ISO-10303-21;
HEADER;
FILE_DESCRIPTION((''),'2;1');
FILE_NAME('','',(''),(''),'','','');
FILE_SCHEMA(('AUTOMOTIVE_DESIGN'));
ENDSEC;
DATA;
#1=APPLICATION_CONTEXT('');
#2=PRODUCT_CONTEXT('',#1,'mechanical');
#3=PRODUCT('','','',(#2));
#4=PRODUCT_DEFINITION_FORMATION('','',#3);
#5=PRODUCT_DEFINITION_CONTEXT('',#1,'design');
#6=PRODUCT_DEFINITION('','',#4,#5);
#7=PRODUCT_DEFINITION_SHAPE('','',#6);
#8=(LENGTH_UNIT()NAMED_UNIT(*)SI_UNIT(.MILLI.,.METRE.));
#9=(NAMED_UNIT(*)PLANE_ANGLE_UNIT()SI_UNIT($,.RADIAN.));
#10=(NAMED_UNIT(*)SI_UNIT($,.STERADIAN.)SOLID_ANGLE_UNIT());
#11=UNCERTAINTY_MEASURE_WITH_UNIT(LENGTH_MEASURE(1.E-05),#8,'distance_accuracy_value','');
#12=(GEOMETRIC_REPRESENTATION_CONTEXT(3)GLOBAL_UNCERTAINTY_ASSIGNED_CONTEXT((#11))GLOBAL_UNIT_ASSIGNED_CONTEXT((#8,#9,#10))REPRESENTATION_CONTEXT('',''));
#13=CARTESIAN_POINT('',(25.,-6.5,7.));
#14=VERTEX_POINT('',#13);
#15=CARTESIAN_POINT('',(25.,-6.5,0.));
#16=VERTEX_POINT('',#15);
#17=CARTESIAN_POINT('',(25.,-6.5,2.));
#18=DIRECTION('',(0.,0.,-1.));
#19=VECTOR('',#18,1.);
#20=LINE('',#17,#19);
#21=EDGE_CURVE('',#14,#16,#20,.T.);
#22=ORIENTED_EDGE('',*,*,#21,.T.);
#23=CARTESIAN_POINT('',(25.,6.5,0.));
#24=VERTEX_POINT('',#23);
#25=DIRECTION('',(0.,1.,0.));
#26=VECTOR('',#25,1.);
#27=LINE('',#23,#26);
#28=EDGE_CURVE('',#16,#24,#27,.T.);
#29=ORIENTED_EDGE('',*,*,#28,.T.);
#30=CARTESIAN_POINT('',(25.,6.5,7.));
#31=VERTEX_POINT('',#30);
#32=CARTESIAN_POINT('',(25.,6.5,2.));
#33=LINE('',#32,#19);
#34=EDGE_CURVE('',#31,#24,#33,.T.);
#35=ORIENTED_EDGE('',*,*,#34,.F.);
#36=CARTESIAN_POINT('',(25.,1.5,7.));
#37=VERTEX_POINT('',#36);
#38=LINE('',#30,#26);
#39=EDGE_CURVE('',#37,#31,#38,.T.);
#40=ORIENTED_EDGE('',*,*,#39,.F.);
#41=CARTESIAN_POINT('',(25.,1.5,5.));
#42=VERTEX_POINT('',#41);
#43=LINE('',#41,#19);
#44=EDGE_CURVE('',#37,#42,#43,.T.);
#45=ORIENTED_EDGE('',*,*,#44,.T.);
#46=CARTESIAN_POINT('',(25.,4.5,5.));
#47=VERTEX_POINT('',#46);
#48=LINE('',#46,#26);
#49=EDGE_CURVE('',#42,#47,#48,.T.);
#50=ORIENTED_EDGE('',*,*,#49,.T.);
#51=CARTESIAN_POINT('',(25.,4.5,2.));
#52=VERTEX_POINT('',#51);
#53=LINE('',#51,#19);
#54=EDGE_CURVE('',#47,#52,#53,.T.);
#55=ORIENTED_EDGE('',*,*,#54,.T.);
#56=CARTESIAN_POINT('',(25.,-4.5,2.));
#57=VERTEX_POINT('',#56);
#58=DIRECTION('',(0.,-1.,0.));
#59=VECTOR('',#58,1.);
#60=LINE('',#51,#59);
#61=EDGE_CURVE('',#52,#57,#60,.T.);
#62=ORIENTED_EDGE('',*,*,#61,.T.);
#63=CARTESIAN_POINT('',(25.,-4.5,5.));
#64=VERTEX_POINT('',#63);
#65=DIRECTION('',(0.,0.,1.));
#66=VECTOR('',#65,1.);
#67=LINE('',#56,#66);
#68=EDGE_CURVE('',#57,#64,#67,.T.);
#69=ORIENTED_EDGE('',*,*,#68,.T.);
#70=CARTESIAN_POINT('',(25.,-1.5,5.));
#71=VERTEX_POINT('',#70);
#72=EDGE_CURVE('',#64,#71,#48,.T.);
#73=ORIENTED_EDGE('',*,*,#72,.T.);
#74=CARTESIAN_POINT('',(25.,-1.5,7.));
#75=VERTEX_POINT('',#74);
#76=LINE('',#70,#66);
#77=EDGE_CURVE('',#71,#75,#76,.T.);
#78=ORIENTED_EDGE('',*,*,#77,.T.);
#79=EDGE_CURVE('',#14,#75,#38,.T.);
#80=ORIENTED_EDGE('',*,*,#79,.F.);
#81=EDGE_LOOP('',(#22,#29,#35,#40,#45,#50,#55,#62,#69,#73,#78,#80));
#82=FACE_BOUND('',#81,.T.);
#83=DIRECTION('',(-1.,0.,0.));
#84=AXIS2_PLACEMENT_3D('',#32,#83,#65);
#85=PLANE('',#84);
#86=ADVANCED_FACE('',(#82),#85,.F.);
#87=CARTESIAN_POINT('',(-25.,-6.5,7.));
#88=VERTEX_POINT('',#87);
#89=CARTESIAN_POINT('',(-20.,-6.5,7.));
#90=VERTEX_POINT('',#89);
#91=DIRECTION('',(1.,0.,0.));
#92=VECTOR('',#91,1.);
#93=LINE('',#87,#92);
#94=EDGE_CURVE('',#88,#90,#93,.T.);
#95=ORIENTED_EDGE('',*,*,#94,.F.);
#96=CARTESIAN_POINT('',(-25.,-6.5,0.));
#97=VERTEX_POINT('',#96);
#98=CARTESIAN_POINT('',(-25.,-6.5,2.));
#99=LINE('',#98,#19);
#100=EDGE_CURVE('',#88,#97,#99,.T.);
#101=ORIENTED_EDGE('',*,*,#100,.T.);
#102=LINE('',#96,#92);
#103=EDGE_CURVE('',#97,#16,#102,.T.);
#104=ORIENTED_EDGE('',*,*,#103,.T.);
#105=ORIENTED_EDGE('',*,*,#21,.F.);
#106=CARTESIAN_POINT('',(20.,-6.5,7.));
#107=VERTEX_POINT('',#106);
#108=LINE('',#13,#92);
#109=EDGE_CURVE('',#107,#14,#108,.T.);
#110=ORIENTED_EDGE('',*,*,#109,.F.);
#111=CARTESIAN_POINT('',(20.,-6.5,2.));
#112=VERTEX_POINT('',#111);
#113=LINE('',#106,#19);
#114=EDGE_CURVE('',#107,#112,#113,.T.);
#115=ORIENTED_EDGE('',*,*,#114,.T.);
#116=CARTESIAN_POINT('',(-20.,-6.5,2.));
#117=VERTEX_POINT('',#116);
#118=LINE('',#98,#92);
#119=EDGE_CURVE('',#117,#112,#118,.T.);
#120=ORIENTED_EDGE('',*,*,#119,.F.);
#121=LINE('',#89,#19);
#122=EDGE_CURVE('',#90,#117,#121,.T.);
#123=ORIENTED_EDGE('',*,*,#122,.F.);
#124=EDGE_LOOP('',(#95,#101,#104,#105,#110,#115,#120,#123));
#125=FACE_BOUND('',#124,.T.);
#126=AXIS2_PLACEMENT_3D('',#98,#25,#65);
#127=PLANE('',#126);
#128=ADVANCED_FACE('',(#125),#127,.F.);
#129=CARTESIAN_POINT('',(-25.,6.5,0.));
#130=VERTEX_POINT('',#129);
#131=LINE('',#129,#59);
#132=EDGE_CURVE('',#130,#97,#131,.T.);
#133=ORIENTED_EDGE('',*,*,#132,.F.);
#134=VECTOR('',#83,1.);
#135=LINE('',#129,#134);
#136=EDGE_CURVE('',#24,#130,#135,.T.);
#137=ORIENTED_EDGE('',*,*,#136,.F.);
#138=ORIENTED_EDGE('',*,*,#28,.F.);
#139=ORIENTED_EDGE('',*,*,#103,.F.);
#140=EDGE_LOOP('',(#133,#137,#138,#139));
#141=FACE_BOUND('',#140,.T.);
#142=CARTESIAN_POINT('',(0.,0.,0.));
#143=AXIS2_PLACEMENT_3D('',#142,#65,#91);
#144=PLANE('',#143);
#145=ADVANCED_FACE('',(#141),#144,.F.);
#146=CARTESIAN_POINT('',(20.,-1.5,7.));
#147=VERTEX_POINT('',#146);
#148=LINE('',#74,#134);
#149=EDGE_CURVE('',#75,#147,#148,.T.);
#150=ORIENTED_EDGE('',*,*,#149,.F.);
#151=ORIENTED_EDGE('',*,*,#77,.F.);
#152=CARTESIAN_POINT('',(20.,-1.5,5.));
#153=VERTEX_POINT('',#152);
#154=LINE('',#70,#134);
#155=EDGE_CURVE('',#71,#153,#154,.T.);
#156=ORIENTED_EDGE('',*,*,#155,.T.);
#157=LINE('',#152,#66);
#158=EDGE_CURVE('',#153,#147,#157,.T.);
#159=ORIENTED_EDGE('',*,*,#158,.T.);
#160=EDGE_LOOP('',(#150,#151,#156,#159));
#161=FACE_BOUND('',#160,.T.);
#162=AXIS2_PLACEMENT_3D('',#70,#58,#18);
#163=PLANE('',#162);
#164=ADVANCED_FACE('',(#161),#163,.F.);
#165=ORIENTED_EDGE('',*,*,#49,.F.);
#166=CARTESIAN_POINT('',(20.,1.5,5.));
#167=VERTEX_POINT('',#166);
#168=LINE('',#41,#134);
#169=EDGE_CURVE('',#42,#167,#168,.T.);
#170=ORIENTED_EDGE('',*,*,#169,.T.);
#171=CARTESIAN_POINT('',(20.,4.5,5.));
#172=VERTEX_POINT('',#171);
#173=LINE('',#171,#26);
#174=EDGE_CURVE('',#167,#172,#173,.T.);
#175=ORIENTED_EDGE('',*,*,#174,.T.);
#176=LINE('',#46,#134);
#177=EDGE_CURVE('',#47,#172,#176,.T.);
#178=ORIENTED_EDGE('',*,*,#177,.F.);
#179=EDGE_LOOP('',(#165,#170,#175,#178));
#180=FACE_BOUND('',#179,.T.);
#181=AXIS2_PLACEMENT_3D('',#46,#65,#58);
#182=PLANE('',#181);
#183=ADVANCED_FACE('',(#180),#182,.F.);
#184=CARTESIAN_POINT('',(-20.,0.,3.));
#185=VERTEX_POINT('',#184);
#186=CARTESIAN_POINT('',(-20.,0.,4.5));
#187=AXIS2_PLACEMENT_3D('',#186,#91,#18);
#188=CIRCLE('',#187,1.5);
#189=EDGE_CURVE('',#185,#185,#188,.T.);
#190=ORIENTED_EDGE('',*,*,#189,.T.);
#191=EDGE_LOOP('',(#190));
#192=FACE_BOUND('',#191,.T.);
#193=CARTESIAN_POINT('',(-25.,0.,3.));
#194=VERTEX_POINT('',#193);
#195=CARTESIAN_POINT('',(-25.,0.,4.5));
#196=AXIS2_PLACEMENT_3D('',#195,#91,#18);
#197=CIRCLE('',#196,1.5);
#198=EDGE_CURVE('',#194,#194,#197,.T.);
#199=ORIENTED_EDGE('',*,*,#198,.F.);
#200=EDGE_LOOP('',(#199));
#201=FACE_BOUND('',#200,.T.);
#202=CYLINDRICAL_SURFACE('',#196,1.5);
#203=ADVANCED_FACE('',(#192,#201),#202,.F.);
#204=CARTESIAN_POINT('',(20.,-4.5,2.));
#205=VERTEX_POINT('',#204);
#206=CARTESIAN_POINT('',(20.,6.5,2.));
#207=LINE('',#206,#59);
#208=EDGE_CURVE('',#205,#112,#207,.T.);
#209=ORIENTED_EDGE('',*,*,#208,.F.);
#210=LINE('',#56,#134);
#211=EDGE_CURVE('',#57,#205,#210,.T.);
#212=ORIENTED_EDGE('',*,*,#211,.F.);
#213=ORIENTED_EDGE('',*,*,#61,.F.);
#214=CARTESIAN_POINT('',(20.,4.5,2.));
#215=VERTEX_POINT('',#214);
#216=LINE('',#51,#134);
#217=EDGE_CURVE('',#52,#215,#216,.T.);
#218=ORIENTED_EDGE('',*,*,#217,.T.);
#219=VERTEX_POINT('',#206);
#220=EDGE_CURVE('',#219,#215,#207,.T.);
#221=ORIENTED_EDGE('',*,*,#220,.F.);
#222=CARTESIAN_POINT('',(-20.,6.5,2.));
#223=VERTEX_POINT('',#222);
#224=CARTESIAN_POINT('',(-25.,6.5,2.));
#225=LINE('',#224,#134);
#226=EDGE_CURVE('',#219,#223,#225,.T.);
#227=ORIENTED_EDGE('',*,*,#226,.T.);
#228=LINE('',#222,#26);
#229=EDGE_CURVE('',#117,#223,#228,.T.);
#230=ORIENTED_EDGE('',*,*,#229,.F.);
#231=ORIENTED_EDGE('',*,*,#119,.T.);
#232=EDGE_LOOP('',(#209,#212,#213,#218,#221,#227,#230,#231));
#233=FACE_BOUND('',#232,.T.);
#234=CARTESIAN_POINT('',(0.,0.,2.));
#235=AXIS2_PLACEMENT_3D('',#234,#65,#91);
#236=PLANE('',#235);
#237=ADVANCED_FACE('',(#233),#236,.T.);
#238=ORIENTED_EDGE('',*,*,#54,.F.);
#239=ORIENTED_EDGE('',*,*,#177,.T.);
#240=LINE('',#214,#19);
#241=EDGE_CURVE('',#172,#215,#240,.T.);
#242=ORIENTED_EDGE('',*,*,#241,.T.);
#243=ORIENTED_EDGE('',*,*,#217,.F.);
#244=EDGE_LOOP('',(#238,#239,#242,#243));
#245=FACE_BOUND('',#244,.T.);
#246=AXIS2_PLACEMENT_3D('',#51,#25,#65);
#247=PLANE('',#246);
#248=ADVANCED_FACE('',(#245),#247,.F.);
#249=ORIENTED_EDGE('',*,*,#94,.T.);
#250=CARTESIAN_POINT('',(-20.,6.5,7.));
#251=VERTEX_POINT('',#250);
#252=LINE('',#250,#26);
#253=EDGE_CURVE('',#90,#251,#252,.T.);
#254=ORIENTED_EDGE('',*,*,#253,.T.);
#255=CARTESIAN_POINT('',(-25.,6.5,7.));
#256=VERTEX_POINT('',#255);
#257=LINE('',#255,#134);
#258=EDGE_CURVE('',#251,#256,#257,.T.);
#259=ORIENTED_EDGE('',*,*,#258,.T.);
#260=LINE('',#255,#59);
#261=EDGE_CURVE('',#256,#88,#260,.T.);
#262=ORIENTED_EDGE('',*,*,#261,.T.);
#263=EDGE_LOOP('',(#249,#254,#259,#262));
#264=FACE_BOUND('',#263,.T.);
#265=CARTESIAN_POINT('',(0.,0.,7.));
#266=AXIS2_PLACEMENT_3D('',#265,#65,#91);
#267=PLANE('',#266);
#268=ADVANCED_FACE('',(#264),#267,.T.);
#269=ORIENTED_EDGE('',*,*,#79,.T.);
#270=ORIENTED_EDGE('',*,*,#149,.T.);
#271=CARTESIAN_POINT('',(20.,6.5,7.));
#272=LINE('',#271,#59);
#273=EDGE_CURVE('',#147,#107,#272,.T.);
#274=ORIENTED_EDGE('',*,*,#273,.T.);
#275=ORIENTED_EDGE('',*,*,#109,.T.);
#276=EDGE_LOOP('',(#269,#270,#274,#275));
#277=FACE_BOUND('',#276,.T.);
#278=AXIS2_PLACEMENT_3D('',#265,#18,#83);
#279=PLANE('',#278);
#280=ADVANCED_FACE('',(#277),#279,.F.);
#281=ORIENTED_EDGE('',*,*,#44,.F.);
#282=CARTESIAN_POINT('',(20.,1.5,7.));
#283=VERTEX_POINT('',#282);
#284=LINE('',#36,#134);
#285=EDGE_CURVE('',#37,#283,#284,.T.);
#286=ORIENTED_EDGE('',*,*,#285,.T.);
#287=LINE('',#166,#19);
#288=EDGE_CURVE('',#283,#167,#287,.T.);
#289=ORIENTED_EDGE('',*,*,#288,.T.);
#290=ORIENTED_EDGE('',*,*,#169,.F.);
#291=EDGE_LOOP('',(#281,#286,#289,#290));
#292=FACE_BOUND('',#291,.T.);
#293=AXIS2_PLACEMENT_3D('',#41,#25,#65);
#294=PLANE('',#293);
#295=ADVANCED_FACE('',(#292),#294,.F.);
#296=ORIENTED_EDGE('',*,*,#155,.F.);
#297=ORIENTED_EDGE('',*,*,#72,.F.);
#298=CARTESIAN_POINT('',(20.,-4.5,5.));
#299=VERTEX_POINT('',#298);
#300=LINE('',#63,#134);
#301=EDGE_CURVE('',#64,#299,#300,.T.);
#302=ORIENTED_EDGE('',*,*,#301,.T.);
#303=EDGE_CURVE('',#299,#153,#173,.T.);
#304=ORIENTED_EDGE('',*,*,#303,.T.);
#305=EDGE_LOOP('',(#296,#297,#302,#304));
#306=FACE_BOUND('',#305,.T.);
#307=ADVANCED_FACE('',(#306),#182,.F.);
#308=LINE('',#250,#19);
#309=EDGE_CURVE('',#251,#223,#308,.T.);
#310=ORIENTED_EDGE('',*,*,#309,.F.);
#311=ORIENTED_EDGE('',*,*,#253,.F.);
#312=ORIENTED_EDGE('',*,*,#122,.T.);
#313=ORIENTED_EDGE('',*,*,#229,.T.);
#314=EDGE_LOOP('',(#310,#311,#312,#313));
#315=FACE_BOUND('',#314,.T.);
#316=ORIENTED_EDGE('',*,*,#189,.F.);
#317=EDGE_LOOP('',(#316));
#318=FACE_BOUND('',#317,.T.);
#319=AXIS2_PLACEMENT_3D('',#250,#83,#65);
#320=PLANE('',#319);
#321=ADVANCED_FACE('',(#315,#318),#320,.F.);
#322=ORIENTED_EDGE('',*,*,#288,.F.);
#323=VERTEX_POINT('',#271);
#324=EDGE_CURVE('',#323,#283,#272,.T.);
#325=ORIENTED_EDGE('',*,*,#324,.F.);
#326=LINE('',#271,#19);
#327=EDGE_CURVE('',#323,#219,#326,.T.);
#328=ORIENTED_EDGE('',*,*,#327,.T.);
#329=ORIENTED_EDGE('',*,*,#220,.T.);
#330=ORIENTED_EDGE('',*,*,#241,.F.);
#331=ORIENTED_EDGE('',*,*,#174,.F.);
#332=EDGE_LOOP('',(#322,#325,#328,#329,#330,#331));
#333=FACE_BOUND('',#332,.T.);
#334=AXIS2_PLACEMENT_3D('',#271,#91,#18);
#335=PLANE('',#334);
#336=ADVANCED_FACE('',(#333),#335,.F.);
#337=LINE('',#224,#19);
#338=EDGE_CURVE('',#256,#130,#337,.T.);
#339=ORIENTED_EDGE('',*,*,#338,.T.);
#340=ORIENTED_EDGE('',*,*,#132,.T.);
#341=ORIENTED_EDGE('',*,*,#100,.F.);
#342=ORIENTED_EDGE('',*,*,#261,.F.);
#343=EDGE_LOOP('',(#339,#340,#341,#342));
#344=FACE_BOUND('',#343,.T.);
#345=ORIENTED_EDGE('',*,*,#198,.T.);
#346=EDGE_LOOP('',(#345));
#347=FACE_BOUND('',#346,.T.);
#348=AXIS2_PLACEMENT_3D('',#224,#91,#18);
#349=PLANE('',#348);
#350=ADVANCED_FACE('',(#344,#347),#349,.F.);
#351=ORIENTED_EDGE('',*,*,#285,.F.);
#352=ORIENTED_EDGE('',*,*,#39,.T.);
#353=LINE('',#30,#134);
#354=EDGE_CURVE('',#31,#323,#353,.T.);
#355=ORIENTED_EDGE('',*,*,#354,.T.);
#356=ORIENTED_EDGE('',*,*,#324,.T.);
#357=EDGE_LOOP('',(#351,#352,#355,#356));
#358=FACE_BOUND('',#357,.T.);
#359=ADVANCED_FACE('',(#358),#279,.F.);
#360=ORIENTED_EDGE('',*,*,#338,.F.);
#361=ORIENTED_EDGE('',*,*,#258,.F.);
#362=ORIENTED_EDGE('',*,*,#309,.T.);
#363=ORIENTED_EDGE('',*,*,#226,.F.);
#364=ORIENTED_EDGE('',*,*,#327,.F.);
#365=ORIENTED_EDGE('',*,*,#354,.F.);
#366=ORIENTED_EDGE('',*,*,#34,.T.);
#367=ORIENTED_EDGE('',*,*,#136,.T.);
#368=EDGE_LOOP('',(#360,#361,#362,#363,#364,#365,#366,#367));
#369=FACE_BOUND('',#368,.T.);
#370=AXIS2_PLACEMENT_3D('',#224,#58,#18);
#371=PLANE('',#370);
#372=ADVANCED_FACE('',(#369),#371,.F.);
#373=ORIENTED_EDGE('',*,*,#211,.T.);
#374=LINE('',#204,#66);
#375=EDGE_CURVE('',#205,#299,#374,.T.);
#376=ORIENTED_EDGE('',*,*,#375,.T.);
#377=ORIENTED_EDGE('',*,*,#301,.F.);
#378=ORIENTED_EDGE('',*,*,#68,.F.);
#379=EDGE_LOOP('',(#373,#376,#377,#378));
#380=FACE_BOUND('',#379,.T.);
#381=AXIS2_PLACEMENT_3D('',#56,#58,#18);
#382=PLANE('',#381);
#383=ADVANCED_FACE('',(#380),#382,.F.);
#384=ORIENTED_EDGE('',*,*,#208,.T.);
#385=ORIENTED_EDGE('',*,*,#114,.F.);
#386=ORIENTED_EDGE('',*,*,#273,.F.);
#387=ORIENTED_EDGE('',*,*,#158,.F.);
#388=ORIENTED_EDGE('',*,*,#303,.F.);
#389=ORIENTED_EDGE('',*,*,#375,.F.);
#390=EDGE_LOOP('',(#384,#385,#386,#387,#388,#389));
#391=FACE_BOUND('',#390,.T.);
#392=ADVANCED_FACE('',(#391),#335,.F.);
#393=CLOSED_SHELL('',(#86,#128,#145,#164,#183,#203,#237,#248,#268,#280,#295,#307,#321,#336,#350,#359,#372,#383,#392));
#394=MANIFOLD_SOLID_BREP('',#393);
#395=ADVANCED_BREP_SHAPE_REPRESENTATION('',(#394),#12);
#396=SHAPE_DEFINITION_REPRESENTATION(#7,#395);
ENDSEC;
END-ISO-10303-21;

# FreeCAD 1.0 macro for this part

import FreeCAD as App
import Part
import Sketcher
from FreeCAD import Vector
Q = App.Units.Quantity


def add_polygon(sketch, points):
    """Adds a closed chain of lines whose ends are joined by coincident constraints."""
    first, n = sketch.GeometryCount, len(points)
    for a, b in zip(points, points[1:] + points[:1]):
        sketch.addGeometry(Part.LineSegment(App.Vector(*a, 0), App.Vector(*b, 0)), False)
    for i in range(n):
        sketch.addConstraint(Sketcher.Constraint("Coincident", first + i, 2, first + (i + 1) % n, 1))

doc = App.newDocument("Part")
body = doc.addObject("PartDesign::Body", "Body")

# Sketch on XY plane
sketch1 = body.newObject("Sketcher::SketchObject", "Sketch")
sketch1.AttachmentSupport = (doc.getObject("XY_Plane"), [""])
sketch1.MapMode = "FlatFace"
add_polygon(sketch1, [(-25, 6), (-25, -6), (25, -6), (25, 6)])  # lines 0-3
sketch1.addConstraint([
    Sketcher.Constraint("Vertical", 0),
    Sketcher.Constraint("Horizontal", 1),
    Sketcher.Constraint("Vertical", 2),
    Sketcher.Constraint("Horizontal", 3),
    Sketcher.Constraint("Symmetric", 0, 2, 2, 2, -1, 1),
    Sketcher.Constraint("DistanceX", 1, 1, 1, 2, Q("50 mm")),
    Sketcher.Constraint("DistanceY", 0, 2, 0, 1, Q("13 mm")),
])
pad1 = body.newObject("PartDesign::Pad", "Pad")
pad1.Profile = sketch1
pad1.Length = 2

# Sketch on XY plane
sketch2 = body.newObject("Sketcher::SketchObject", "Sketch001")
sketch2.AttachmentSupport = (doc.getObject("XY_Plane"), [""])
sketch2.MapMode = "FlatFace"
sketch2.AttachmentOffset = App.Placement(Vector(0, 0, 2), App.Rotation())
add_polygon(sketch2, [(-25, 6), (-25, -6), (-20, -6), (-20, 6)])  # lines 0-3
sketch2.addConstraint([
    Sketcher.Constraint("Vertical", 0),
    Sketcher.Constraint("Horizontal", 1),
    Sketcher.Constraint("Vertical", 2),
    Sketcher.Constraint("Horizontal", 3),
    Sketcher.Constraint("DistanceX", 1, 1, 1, 2, Q("5 mm")),
    Sketcher.Constraint("DistanceY", 0, 2, 0, 1, Q("13 mm")),
    Sketcher.Constraint("DistanceX", 0, 2, -1, 1, Q("25 mm")),
    Sketcher.Constraint("DistanceY", 0, 2, -1, 1, Q("6.5 mm")),
])
pad2 = body.newObject("PartDesign::Pad", "Pad001")
pad2.Profile = sketch2
pad2.Length = 5

# Sketch on YZ plane
sketch3 = body.newObject("Sketcher::SketchObject", "Sketch002")
sketch3.AttachmentSupport = (doc.getObject("YZ_Plane"), [""])
sketch3.MapMode = "FlatFace"
sketch3.AttachmentOffset = App.Placement(Vector(0, 0, -20), App.Rotation())
sketch3.addGeometry(Part.Circle(Vector(0, 4.5, 0), Vector(0, 0, 1), 1.5), False)
sketch3.addConstraint([
    Sketcher.Constraint("PointOnObject", 0, 3, -2),
    Sketcher.Constraint("Diameter", 0, Q("3 mm")),
    Sketcher.Constraint("DistanceY", -1, 1, 0, 3, Q("4.5 mm")),
])
pocket1 = body.newObject("PartDesign::Pocket", "Pocket")
pocket1.Profile = sketch3
pocket1.Length = 5

# Sketch on XY plane
sketch4 = body.newObject("Sketcher::SketchObject", "Sketch003")
sketch4.AttachmentSupport = (doc.getObject("XY_Plane"), [""])
sketch4.MapMode = "FlatFace"
sketch4.AttachmentOffset = App.Placement(Vector(0, 0, 2), App.Rotation())
add_polygon(sketch4, [(20, 6), (20, -6), (25, -6), (25, 6)])  # lines 0-3
sketch4.addConstraint([
    Sketcher.Constraint("Vertical", 0),
    Sketcher.Constraint("Horizontal", 1),
    Sketcher.Constraint("Vertical", 2),
    Sketcher.Constraint("Horizontal", 3),
    Sketcher.Constraint("DistanceX", 1, 1, 1, 2, Q("5 mm")),
    Sketcher.Constraint("DistanceY", 0, 2, 0, 1, Q("13 mm")),
    Sketcher.Constraint("DistanceX", -1, 1, 0, 2, Q("20 mm")),
    Sketcher.Constraint("DistanceY", 0, 2, -1, 1, Q("6.5 mm")),
])
pad3 = body.newObject("PartDesign::Pad", "Pad002")
pad3.Profile = sketch4
pad3.Length = 5

# Sketch on YZ plane
sketch5 = body.newObject("Sketcher::SketchObject", "Sketch004")
sketch5.AttachmentSupport = (doc.getObject("YZ_Plane"), [""])
sketch5.MapMode = "FlatFace"
sketch5.AttachmentOffset = App.Placement(Vector(0, 0, 20), App.Rotation())
add_polygon(sketch5, [(4.5, 2), (-4.5, 2), (-4.5, 5), (4.5, 5)])  # lines 0-3
sketch5.addConstraint([
    Sketcher.Constraint("Horizontal", 0),
    Sketcher.Constraint("Vertical", 1),
    Sketcher.Constraint("Horizontal", 2),
    Sketcher.Constraint("Vertical", 3),
    Sketcher.Constraint("DistanceX", 0, 2, 0, 1, Q("9 mm")),
    Sketcher.Constraint("DistanceY", 1, 1, 1, 2, Q("3 mm")),
    Sketcher.Constraint("DistanceY", -1, 1, 0, 2, Q("2 mm")),
    Sketcher.Constraint("DistanceX", 0, 2, -1, 1, Q("4.5 mm")),
])
pocket2 = body.newObject("PartDesign::Pocket", "Pocket001")
pocket2.Profile = sketch5
pocket2.Length = 5
pocket2.Reversed = True

# Sketch on YZ plane
sketch6 = body.newObject("Sketcher::SketchObject", "Sketch005")
sketch6.AttachmentSupport = (doc.getObject("YZ_Plane"), [""])
sketch6.MapMode = "FlatFace"
sketch6.AttachmentOffset = App.Placement(Vector(0, 0, 20), App.Rotation())
add_polygon(sketch6, [(1.5, 5), (-1.5, 5), (-1.5, 7), (1.5, 7)])  # lines 0-3
sketch6.addConstraint([
    Sketcher.Constraint("Horizontal", 0),
    Sketcher.Constraint("Vertical", 1),
    Sketcher.Constraint("Horizontal", 2),
    Sketcher.Constraint("Vertical", 3),
    Sketcher.Constraint("DistanceX", 0, 2, 0, 1, Q("3 mm")),
    Sketcher.Constraint("DistanceY", 1, 1, 1, 2, Q("2 mm")),
    Sketcher.Constraint("DistanceY", -1, 1, 0, 2, Q("5 mm")),
    Sketcher.Constraint("DistanceX", 0, 2, -1, 1, Q("1.5 mm")),
])
pocket3 = body.newObject("PartDesign::Pocket", "Pocket002")
pocket3.Profile = sketch6
pocket3.Length = 5
pocket3.Reversed = True

doc.recompute()
